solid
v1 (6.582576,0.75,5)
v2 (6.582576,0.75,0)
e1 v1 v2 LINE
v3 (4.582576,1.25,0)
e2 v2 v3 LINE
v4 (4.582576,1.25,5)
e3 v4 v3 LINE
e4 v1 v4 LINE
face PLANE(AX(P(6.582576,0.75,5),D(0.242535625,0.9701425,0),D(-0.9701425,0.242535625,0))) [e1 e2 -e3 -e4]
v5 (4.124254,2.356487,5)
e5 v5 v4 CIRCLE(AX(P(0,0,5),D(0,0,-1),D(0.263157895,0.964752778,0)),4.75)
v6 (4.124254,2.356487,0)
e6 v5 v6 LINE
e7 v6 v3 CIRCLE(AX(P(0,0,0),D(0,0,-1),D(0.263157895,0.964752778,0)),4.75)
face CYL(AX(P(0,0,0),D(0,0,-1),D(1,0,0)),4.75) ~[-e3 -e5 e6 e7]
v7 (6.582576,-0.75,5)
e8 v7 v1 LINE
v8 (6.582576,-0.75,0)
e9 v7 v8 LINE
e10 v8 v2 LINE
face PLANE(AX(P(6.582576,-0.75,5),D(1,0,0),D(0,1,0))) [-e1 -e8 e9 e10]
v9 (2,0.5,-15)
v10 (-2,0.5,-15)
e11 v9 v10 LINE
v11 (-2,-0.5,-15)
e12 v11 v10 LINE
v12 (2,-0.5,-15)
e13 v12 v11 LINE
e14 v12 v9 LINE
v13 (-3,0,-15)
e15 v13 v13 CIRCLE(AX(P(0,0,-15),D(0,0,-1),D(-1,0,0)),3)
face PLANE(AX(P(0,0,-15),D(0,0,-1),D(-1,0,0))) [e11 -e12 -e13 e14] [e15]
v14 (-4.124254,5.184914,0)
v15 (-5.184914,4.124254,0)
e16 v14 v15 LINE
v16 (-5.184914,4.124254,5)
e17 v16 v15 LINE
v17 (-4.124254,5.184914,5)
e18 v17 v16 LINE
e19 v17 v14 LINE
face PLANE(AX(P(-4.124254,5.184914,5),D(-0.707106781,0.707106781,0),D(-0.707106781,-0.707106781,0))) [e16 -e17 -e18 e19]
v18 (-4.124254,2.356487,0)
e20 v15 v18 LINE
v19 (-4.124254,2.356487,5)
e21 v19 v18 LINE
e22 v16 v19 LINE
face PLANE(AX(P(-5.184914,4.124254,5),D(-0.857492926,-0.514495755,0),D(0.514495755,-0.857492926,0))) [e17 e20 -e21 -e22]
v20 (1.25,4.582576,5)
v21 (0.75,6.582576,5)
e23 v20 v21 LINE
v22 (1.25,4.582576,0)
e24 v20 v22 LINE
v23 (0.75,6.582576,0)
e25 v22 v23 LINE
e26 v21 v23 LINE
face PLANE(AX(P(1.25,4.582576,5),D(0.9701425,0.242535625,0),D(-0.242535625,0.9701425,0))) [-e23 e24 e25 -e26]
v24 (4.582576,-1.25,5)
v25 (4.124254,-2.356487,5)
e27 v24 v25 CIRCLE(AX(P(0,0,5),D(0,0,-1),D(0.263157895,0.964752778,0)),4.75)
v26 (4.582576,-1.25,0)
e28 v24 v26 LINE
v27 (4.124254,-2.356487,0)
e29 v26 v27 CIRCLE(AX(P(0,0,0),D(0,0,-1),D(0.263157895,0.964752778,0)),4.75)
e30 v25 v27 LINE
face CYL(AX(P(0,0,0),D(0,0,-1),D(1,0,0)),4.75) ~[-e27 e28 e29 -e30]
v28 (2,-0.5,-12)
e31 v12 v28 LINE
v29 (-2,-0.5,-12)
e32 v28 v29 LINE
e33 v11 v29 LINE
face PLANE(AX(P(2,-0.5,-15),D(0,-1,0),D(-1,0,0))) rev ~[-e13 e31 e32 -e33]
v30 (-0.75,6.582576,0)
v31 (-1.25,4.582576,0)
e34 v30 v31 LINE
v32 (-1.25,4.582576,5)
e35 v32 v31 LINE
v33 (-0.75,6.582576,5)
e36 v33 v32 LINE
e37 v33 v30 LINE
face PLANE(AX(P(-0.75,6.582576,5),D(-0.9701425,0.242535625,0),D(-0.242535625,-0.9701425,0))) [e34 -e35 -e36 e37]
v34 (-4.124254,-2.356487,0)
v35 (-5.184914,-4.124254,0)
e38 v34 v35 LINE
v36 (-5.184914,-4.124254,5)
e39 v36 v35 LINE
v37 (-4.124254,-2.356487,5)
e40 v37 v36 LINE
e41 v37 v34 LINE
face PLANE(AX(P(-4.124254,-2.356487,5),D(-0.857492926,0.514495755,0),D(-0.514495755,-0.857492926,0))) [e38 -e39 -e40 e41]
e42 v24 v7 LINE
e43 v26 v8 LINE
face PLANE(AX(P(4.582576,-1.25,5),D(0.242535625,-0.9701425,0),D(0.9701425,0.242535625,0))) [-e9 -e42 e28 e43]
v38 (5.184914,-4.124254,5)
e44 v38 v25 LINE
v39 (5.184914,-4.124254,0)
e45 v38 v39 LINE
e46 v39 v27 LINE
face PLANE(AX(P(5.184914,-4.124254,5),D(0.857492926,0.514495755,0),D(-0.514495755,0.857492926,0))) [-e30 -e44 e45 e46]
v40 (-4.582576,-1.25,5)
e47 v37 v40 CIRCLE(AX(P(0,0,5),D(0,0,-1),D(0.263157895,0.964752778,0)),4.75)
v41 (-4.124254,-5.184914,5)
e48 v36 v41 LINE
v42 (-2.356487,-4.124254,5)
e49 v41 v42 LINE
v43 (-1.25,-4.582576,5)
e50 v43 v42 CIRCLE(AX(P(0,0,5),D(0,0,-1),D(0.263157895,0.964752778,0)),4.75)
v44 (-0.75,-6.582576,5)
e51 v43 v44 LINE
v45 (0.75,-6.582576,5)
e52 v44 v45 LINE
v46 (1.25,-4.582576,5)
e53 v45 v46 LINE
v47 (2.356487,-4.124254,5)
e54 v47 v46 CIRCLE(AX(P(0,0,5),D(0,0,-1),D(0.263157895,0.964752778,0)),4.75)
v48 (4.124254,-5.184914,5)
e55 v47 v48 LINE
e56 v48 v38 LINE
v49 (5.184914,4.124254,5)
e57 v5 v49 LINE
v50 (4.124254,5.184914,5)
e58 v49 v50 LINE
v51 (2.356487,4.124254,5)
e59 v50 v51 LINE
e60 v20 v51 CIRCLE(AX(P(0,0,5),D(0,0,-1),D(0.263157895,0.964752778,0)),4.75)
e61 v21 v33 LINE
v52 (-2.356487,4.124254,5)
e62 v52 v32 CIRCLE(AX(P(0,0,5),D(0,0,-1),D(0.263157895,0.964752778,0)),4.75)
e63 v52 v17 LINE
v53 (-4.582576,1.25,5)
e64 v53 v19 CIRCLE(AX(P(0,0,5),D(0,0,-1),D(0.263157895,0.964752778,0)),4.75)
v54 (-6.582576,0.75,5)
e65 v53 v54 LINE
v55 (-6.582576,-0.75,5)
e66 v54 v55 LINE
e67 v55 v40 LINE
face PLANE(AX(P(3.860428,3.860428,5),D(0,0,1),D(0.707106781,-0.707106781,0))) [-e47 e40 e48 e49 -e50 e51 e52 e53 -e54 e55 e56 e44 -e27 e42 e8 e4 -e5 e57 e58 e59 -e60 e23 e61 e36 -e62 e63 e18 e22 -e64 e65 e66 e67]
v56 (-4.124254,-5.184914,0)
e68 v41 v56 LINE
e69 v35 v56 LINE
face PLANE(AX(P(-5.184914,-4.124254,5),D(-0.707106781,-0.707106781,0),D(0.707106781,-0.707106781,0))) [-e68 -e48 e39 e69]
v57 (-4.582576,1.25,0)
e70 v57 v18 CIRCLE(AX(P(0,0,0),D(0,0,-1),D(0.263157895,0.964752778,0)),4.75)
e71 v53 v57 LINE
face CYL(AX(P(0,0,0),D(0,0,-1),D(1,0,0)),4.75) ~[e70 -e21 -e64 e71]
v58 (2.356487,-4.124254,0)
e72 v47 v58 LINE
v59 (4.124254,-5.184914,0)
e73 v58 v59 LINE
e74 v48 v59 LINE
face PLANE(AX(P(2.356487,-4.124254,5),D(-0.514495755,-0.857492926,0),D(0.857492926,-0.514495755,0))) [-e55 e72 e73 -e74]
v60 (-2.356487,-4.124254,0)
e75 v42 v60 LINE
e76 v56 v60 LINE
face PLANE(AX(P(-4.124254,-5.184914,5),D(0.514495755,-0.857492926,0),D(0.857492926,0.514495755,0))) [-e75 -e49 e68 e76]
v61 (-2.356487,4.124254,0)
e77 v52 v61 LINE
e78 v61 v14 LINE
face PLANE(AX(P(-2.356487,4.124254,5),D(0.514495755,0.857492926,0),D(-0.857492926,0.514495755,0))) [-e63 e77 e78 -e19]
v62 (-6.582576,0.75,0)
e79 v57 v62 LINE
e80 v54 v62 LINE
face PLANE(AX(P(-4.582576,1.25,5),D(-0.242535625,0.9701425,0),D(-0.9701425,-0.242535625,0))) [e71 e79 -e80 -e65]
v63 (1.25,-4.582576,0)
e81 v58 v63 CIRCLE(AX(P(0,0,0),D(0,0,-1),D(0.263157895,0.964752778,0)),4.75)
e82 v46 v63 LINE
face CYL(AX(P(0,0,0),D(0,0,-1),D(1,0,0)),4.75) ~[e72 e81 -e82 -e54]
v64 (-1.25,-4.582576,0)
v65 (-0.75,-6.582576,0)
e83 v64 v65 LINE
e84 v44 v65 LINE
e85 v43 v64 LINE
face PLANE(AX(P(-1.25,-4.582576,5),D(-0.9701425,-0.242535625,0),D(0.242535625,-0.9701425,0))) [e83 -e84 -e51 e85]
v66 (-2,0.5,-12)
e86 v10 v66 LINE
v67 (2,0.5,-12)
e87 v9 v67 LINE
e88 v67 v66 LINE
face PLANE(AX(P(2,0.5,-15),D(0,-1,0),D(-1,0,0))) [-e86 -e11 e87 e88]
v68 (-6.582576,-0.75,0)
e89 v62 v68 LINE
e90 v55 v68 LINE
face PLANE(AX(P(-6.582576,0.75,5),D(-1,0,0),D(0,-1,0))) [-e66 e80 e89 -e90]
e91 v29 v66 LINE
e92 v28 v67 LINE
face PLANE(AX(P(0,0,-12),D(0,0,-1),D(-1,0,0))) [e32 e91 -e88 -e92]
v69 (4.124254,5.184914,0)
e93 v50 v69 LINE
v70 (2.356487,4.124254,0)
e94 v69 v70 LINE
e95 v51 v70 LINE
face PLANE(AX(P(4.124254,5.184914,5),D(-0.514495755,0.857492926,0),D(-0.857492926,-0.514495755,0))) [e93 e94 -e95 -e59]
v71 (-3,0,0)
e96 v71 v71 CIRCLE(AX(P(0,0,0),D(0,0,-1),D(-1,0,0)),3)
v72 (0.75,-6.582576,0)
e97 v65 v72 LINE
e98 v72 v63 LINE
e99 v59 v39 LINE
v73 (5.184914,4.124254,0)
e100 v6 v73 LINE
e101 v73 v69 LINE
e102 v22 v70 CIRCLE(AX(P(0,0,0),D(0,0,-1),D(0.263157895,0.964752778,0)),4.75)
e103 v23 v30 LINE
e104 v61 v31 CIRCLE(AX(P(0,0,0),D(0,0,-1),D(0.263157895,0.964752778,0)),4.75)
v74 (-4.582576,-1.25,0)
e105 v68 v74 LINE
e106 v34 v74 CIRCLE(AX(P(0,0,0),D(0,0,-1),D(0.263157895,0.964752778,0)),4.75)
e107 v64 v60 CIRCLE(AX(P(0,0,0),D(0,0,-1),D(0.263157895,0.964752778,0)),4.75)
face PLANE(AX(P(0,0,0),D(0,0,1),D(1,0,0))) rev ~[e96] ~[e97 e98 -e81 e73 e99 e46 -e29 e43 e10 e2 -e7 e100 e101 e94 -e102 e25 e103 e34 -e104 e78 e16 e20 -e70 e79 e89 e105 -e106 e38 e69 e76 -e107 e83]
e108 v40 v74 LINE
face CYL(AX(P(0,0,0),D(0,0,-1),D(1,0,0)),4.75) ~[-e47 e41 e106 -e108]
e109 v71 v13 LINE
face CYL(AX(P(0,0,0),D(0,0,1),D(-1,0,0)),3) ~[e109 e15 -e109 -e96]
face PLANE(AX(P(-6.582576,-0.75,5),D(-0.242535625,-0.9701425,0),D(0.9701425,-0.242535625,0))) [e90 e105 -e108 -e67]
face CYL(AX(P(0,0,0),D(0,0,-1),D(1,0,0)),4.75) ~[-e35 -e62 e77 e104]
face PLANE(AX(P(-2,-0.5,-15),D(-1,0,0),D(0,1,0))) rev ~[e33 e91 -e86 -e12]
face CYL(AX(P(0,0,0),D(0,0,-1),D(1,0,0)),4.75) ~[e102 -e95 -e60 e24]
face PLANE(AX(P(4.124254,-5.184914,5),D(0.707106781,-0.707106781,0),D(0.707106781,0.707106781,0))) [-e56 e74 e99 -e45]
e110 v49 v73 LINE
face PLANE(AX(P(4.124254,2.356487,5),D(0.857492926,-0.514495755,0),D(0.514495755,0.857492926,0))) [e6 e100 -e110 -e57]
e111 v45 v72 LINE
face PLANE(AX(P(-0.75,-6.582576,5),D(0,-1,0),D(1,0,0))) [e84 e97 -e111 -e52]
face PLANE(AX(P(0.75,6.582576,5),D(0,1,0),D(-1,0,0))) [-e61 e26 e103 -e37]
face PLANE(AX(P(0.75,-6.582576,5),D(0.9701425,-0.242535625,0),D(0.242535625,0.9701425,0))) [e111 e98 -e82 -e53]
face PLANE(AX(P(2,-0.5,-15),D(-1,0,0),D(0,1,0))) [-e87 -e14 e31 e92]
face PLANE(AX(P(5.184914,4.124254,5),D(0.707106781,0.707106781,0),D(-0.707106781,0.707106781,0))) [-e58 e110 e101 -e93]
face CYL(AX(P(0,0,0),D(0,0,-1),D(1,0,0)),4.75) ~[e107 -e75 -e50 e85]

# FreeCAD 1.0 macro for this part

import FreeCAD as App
import Part
import Sketcher
from FreeCAD import Vector


def add_polygon(sketch, points):
    """Adds a closed chain of lines whose ends are joined by coincident constraints."""
    first, n = sketch.GeometryCount, len(points)
    for a, b in zip(points, points[1:] + points[:1]):
        sketch.addGeometry(Part.LineSegment(App.Vector(*a, 0), App.Vector(*b, 0)), False)
    for i in range(n):
        sketch.addConstraint(Sketcher.Constraint("Coincident", first + i, 2, first + (i + 1) % n, 1))

doc = App.newDocument("Part")
body = doc.addObject("PartDesign::Body", "Body")

# Sketch on XY plane
sketch1 = body.newObject("Sketcher::SketchObject", "Sketch")
sketch1.AttachmentSupport = (doc.getObject("XY_Plane"), [""])
sketch1.MapMode = "FlatFace"
sketch1.addGeometry(Part.Circle(Vector(0, 0, 0), Vector(0, 0, 1), 4.75), False)
sketch1.addConstraint([
    Sketcher.Constraint("Coincident", 0, 3, -1, 1),
    Sketcher.Constraint("Diameter", 0, 9.5),
])
pad1 = body.newObject("PartDesign::Pad", "Pad")
pad1.Profile = sketch1
pad1.Length = 5

# Sketch on XY plane
sketch2 = body.newObject("Sketcher::SketchObject", "Sketch001")
sketch2.AttachmentSupport = (doc.getObject("XY_Plane"), [""])
sketch2.MapMode = "FlatFace"
sketch2.AttachmentOffset = App.Placement(Vector(0, 0, 5), App.Rotation())
add_polygon(sketch2, [(-1.25, 4.582576), (1.25, 4.582576), (0.75, 6.582576), (-0.75, 6.582576)])  # lines 0-3
sketch2.addConstraint([
    Sketcher.Constraint("Horizontal", 0),
    Sketcher.Constraint("Horizontal", 2),
    Sketcher.Constraint("Equal", 1, 3),
    Sketcher.Constraint("DistanceX", 0, 1, 0, 2, 2.5),
    Sketcher.Constraint("DistanceX", 2, 2, 2, 1, 1.5),
    Sketcher.Constraint("DistanceY", 0, 2, 1, 2, 2.0),
    Sketcher.Constraint("DistanceX", -1, 1, 0, 2, 1.25),
    Sketcher.Constraint("DistanceY", -1, 1, 0, 2, 4.582576),
])
pad2 = body.newObject("PartDesign::Pad", "Pad001")
pad2.Profile = sketch2
pad2.Length = 5
pad2.Reversed = True
doc.recompute()

polarpattern = body.newObject("PartDesign::PolarPattern", "PolarPattern")
polarpattern.Originals = [pad2]
polarpattern.Axis = (doc.getObject("Z_Axis"), [""])
polarpattern.Angle = 360
polarpattern.Occurrences = 8
body.Tip = polarpattern

# Sketch on XY plane
sketch3 = body.newObject("Sketcher::SketchObject", "Sketch002")
sketch3.AttachmentSupport = (doc.getObject("XY_Plane"), [""])
sketch3.MapMode = "FlatFace"
sketch3.addGeometry(Part.Circle(Vector(0, 0, 0), Vector(0, 0, 1), 3), False)
sketch3.addConstraint([
    Sketcher.Constraint("Coincident", 0, 3, -1, 1),
    Sketcher.Constraint("Diameter", 0, 6.0),
])
pad3 = body.newObject("PartDesign::Pad", "Pad002")
pad3.Profile = sketch3
pad3.Length = 15
pad3.Reversed = True

# Sketch on XY plane
sketch4 = body.newObject("Sketcher::SketchObject", "Sketch003")
sketch4.AttachmentSupport = (doc.getObject("XY_Plane"), [""])
sketch4.MapMode = "FlatFace"
sketch4.AttachmentOffset = App.Placement(Vector(0, 0, -15), App.Rotation())
add_polygon(sketch4, [(2, 0.5), (2, -0.5), (-2, -0.5), (-2, 0.5)])  # lines 0-3
sketch4.addConstraint([
    Sketcher.Constraint("Vertical", 0),
    Sketcher.Constraint("Horizontal", 1),
    Sketcher.Constraint("Vertical", 2),
    Sketcher.Constraint("Horizontal", 3),
    Sketcher.Constraint("Symmetric", 0, 2, 2, 2, -1, 1),
    Sketcher.Constraint("DistanceX", 1, 2, 1, 1, 4.0),
    Sketcher.Constraint("DistanceY", 0, 2, 0, 1, 1.0),
])
pocket1 = body.newObject("PartDesign::Pocket", "Pocket")
pocket1.Profile = sketch4
pocket1.Length = 3
pocket1.Reversed = True

doc.recompute()
